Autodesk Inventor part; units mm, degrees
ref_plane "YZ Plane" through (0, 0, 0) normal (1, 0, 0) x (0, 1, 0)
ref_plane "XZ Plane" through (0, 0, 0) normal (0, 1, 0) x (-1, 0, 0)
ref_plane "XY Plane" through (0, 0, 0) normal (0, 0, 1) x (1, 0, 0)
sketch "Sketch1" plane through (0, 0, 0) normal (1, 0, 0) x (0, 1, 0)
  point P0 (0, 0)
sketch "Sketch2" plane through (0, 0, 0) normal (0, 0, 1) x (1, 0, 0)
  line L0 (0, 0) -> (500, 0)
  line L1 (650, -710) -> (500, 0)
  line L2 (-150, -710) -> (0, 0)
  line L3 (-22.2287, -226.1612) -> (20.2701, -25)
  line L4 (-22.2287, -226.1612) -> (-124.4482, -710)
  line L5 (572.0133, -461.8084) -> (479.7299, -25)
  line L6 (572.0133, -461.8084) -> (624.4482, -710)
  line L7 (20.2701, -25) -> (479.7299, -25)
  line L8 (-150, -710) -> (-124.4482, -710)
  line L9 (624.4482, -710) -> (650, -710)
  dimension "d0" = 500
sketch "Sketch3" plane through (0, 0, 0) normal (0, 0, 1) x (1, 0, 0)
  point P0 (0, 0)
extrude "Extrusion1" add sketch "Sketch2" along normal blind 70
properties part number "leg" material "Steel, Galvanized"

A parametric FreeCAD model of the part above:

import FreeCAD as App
import Part
import Sketcher


def add_polygon(sketch, points):
    """Adds a closed chain of lines whose ends are joined by coincident constraints."""
    first, n = sketch.GeometryCount, len(points)
    for a, b in zip(points, points[1:] + points[:1]):
        sketch.addGeometry(Part.LineSegment(App.Vector(*a, 0), App.Vector(*b, 0)), False)
    for i in range(n):
        sketch.addConstraint(Sketcher.Constraint("Coincident", first + i, 2, first + (i + 1) % n, 1))

doc = App.newDocument("Part")
body = doc.addObject("PartDesign::Body", "Body")

# Sketch on XY plane
sketch1 = doc.addObject("Sketcher::SketchObject", "Sketch")
body.addObject(sketch1)
sketch1.AttachmentSupport = (doc.XY_Plane, [""])
sketch1.MapMode = "FlatFace"
add_polygon(sketch1, [(500, 0), (0, 0), (-150, -710), (-124, -710), (-22, -226), (20, -25), (480, -25), (572, -462), (624, -710), (650, -710)])  # lines 0-9
sketch1.addConstraint([
    Sketcher.Constraint("Horizontal", 0),
    Sketcher.Constraint("Horizontal", 2),
    Sketcher.Constraint("Horizontal", 5),
    Sketcher.Constraint("Horizontal", 8),
    Sketcher.Constraint("Coincident", 0, 2, -1, 1),
    Sketcher.Constraint("Parallel", 1, 3),
    Sketcher.Constraint("Parallel", 3, 4),
    Sketcher.Constraint("Parallel", 6, 7),
    Sketcher.Constraint("Parallel", 7, 9),
    Sketcher.Constraint("Horizontal", 2, 2, 7, 2),
    Sketcher.Constraint("Equal", 2, 8),
    Sketcher.Constraint("Equal", 1, 9),
    Sketcher.Constraint("DistanceX", 0, 2, 0, 1, 500.0),
    Sketcher.Constraint("DistanceX", 1, 2, -1, 1, 150.0),
    Sketcher.Constraint("DistanceY", 1, 2, -1, 1, 710.0),
    Sketcher.Constraint("DistanceY", 4, 2, -1, 1, 25.0),
    Sketcher.Constraint("Distance", 7, 253.67),
    Sketcher.Constraint("DistanceX", -1, 1, 4, 2, 20.27),
    Sketcher.Constraint("DistanceX", 3, 2, 6, 2, 594.242),
])
pad1 = doc.addObject("PartDesign::Pad", "Pad")
body.addObject(pad1)
pad1.Profile = sketch1
pad1.Length = 70

doc.recompute()
